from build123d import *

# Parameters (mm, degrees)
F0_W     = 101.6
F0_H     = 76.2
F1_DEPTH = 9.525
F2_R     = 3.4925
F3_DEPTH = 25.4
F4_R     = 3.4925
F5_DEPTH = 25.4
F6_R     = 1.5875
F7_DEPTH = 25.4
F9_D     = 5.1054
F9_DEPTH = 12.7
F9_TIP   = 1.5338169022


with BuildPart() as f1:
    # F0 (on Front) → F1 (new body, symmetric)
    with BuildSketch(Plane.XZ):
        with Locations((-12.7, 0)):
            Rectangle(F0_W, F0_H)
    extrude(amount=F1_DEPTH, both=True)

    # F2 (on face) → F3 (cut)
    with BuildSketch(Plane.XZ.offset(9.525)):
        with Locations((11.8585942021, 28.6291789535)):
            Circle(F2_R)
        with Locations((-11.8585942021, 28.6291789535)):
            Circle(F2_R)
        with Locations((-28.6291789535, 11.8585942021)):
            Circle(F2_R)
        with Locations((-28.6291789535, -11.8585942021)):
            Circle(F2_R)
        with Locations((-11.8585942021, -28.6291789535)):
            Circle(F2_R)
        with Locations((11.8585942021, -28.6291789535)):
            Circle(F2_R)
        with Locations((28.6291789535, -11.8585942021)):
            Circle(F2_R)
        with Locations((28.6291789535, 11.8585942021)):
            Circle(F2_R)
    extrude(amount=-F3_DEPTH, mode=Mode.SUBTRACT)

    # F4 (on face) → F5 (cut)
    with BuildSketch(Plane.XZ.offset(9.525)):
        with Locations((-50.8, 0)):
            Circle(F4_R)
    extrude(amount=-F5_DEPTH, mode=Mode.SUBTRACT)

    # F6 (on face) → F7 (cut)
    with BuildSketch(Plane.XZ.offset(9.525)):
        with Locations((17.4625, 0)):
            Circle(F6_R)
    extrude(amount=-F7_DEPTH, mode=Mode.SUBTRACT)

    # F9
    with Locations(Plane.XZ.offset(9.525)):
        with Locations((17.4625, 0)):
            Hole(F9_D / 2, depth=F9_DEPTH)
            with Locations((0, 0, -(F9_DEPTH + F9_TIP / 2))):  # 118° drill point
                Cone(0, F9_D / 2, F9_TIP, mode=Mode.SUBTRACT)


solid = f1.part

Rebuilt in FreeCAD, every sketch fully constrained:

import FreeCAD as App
import Part
import Sketcher

V = App.Vector
Q = App.Units.Quantity

doc = App.newDocument("Part")
body = doc.addObject("PartDesign::Body", "Body")

# Sketch on XZ plane
sketch1 = body.newObject("Sketcher::SketchObject", "Sketch")
sketch1.AttachmentSupport = (doc.getObject("XZ_Plane"), [""])
sketch1.MapMode = "FlatFace"
sketch1.addGeometry([
    Part.LineSegment(V(-64, 38, 0), V(-64, -38, 0)),
    Part.LineSegment(V(-64, -38, 0), V(38, -38, 0)),
    Part.LineSegment(V(38, -38, 0), V(38, 38, 0)),
    Part.LineSegment(V(38, 38, 0), V(-64, 38, 0)),
], False)
sketch1.addConstraint([
    Sketcher.Constraint("Coincident", 0, 2, 1, 1),
    Sketcher.Constraint("Coincident", 1, 2, 2, 1),
    Sketcher.Constraint("Coincident", 2, 2, 3, 1),
    Sketcher.Constraint("Coincident", 3, 2, 0, 1),
    Sketcher.Constraint("Vertical", 0),
    Sketcher.Constraint("Horizontal", 1),
    Sketcher.Constraint("Vertical", 2),
    Sketcher.Constraint("Horizontal", 3),
    Sketcher.Constraint("DistanceX", 1, 1, 1, 2, Q("4 in")),
    Sketcher.Constraint("DistanceY", 0, 2, 0, 1, Q("3 in")),
    Sketcher.Constraint("DistanceX", 0, 2, -1, 1, Q("2.5 in")),
    Sketcher.Constraint("DistanceY", 0, 2, -1, 1, Q("1.5 in")),
])
pad1 = body.newObject("PartDesign::Pad", "Pad")
pad1.Profile = sketch1
pad1.Length = Q("0.75 in")
pad1.Midplane = True

# Sketch on XZ plane
sketch2 = body.newObject("Sketcher::SketchObject", "Sketch001")
sketch2.AttachmentSupport = (doc.getObject("XZ_Plane"), [""])
sketch2.MapMode = "FlatFace"
sketch2.AttachmentOffset = App.Placement(V(0, 0, 0.375 * 25.4), App.Rotation())
sketch2.addGeometry([
    Part.Circle(V(11.9, 28.6, 0), V(0, 0, 1), 3.5),  # 0
    Part.Circle(V(-11.9, 28.6, 0), V(0, 0, 1), 3.5),  # 1
    Part.Circle(V(-28.6, 11.9, 0), V(0, 0, 1), 3.5),  # 2
    Part.Circle(V(-28.6, -11.9, 0), V(0, 0, 1), 3.5),  # 3
    Part.Circle(V(-11.9, -28.6, 0), V(0, 0, 1), 3.5),  # 4
    Part.Circle(V(11.9, -28.6, 0), V(0, 0, 1), 3.5),  # 5
    Part.Circle(V(28.6, -11.9, 0), V(0, 0, 1), 3.5),  # 6
    Part.Circle(V(28.6, 11.9, 0), V(0, 0, 1), 3.5),  # 7
], False)
sketch2.addConstraint([
    Sketcher.Constraint("Equal", 0, 1),
    Sketcher.Constraint("Equal", 1, 2),
    Sketcher.Constraint("Equal", 2, 3),
    Sketcher.Constraint("Equal", 3, 4),
    Sketcher.Constraint("Equal", 4, 5),
    Sketcher.Constraint("Equal", 5, 6),
    Sketcher.Constraint("Equal", 6, 7),
    Sketcher.Constraint("Symmetric", 0, 3, 4, 3, -1, 1),
    Sketcher.Constraint("Symmetric", 1, 3, 5, 3, -1, 1),
    Sketcher.Constraint("Symmetric", 2, 3, 6, 3, -1, 1),
    Sketcher.Constraint("Symmetric", 3, 3, 7, 3, -1, 1),
    Sketcher.Constraint("Symmetric", 0, 3, 1, 3, -2),
    Sketcher.Constraint("Symmetric", 3, 3, 6, 3, -2),
    Sketcher.Constraint("Diameter", 0, Q("0.275 in")),
    Sketcher.Constraint("DistanceY", -1, 1, 0, 3, Q("28.629179 mm")),
    Sketcher.Constraint("DistanceX", 2, 3, -1, 1, Q("28.629179 mm")),
    Sketcher.Constraint("DistanceX", 1, 3, 0, 3, Q("23.717188 mm")),
    Sketcher.Constraint("DistanceY", 3, 3, 2, 3, Q("23.717188 mm")),
])
pocket1 = body.newObject("PartDesign::Pocket", "Pocket")
pocket1.Profile = sketch2
pocket1.Length = Q("1 in")

# Sketch on XZ plane
sketch3 = body.newObject("Sketcher::SketchObject", "Sketch002")
sketch3.AttachmentSupport = (doc.getObject("XZ_Plane"), [""])
sketch3.MapMode = "FlatFace"
sketch3.AttachmentOffset = App.Placement(V(0, 0, 0.375 * 25.4), App.Rotation())
sketch3.addGeometry(Part.Circle(V(-50.8, 0, 0), V(0, 0, 1), 3.5), False)
sketch3.addConstraint([
    Sketcher.Constraint("PointOnObject", 0, 3, -1),
    Sketcher.Constraint("Diameter", 0, Q("0.275 in")),
    Sketcher.Constraint("DistanceX", 0, 3, -1, 1, Q("2 in")),
])
pocket2 = body.newObject("PartDesign::Pocket", "Pocket001")
pocket2.Profile = sketch3
pocket2.Length = Q("1 in")

# Sketch on XZ plane
sketch4 = body.newObject("Sketcher::SketchObject", "Sketch003")
sketch4.AttachmentSupport = (doc.getObject("XZ_Plane"), [""])
sketch4.MapMode = "FlatFace"
sketch4.AttachmentOffset = App.Placement(V(0, 0, 0.375 * 25.4), App.Rotation())
sketch4.addGeometry(Part.Circle(V(17.5, 0, 0), V(0, 0, 1), 1.6), False)
sketch4.addConstraint([
    Sketcher.Constraint("PointOnObject", 0, 3, -1),
    Sketcher.Constraint("Diameter", 0, Q("0.125 in")),
    Sketcher.Constraint("DistanceX", -1, 1, 0, 3, Q("0.6875 in")),
])
pocket3 = body.newObject("PartDesign::Pocket", "Pocket002")
pocket3.Profile = sketch4
pocket3.Length = Q("1 in")

# Sketch on XZ plane
sketch5 = body.newObject("Sketcher::SketchObject", "Sketch004")
sketch5.AttachmentSupport = (doc.getObject("XZ_Plane"), [""])
sketch5.MapMode = "FlatFace"
sketch5.AttachmentOffset = App.Placement(V(0, 0, 0.375 * 25.4), App.Rotation())
sketch5.addGeometry(Part.Circle(V(17.5, 0, 0), V(0, 0, 1), 2.6), False)
sketch5.addConstraint([
    Sketcher.Constraint("PointOnObject", 0, 3, -1),
    Sketcher.Constraint("Diameter", 0, Q("0.201 in")),
    Sketcher.Constraint("DistanceX", -1, 1, 0, 3, Q("0.6875 in")),
])
doc.recompute()
hole = body.newObject("PartDesign::Hole", "Hole")
hole.Profile = sketch5
hole.ThreadType = "None"
hole.Diameter = Q("0.201 in")
hole.DepthType = "Dimension"
hole.Depth = Q("0.5 in")
hole.DrillPoint = "Angled"
hole.DrillPointAngle = 118

doc.recompute()
